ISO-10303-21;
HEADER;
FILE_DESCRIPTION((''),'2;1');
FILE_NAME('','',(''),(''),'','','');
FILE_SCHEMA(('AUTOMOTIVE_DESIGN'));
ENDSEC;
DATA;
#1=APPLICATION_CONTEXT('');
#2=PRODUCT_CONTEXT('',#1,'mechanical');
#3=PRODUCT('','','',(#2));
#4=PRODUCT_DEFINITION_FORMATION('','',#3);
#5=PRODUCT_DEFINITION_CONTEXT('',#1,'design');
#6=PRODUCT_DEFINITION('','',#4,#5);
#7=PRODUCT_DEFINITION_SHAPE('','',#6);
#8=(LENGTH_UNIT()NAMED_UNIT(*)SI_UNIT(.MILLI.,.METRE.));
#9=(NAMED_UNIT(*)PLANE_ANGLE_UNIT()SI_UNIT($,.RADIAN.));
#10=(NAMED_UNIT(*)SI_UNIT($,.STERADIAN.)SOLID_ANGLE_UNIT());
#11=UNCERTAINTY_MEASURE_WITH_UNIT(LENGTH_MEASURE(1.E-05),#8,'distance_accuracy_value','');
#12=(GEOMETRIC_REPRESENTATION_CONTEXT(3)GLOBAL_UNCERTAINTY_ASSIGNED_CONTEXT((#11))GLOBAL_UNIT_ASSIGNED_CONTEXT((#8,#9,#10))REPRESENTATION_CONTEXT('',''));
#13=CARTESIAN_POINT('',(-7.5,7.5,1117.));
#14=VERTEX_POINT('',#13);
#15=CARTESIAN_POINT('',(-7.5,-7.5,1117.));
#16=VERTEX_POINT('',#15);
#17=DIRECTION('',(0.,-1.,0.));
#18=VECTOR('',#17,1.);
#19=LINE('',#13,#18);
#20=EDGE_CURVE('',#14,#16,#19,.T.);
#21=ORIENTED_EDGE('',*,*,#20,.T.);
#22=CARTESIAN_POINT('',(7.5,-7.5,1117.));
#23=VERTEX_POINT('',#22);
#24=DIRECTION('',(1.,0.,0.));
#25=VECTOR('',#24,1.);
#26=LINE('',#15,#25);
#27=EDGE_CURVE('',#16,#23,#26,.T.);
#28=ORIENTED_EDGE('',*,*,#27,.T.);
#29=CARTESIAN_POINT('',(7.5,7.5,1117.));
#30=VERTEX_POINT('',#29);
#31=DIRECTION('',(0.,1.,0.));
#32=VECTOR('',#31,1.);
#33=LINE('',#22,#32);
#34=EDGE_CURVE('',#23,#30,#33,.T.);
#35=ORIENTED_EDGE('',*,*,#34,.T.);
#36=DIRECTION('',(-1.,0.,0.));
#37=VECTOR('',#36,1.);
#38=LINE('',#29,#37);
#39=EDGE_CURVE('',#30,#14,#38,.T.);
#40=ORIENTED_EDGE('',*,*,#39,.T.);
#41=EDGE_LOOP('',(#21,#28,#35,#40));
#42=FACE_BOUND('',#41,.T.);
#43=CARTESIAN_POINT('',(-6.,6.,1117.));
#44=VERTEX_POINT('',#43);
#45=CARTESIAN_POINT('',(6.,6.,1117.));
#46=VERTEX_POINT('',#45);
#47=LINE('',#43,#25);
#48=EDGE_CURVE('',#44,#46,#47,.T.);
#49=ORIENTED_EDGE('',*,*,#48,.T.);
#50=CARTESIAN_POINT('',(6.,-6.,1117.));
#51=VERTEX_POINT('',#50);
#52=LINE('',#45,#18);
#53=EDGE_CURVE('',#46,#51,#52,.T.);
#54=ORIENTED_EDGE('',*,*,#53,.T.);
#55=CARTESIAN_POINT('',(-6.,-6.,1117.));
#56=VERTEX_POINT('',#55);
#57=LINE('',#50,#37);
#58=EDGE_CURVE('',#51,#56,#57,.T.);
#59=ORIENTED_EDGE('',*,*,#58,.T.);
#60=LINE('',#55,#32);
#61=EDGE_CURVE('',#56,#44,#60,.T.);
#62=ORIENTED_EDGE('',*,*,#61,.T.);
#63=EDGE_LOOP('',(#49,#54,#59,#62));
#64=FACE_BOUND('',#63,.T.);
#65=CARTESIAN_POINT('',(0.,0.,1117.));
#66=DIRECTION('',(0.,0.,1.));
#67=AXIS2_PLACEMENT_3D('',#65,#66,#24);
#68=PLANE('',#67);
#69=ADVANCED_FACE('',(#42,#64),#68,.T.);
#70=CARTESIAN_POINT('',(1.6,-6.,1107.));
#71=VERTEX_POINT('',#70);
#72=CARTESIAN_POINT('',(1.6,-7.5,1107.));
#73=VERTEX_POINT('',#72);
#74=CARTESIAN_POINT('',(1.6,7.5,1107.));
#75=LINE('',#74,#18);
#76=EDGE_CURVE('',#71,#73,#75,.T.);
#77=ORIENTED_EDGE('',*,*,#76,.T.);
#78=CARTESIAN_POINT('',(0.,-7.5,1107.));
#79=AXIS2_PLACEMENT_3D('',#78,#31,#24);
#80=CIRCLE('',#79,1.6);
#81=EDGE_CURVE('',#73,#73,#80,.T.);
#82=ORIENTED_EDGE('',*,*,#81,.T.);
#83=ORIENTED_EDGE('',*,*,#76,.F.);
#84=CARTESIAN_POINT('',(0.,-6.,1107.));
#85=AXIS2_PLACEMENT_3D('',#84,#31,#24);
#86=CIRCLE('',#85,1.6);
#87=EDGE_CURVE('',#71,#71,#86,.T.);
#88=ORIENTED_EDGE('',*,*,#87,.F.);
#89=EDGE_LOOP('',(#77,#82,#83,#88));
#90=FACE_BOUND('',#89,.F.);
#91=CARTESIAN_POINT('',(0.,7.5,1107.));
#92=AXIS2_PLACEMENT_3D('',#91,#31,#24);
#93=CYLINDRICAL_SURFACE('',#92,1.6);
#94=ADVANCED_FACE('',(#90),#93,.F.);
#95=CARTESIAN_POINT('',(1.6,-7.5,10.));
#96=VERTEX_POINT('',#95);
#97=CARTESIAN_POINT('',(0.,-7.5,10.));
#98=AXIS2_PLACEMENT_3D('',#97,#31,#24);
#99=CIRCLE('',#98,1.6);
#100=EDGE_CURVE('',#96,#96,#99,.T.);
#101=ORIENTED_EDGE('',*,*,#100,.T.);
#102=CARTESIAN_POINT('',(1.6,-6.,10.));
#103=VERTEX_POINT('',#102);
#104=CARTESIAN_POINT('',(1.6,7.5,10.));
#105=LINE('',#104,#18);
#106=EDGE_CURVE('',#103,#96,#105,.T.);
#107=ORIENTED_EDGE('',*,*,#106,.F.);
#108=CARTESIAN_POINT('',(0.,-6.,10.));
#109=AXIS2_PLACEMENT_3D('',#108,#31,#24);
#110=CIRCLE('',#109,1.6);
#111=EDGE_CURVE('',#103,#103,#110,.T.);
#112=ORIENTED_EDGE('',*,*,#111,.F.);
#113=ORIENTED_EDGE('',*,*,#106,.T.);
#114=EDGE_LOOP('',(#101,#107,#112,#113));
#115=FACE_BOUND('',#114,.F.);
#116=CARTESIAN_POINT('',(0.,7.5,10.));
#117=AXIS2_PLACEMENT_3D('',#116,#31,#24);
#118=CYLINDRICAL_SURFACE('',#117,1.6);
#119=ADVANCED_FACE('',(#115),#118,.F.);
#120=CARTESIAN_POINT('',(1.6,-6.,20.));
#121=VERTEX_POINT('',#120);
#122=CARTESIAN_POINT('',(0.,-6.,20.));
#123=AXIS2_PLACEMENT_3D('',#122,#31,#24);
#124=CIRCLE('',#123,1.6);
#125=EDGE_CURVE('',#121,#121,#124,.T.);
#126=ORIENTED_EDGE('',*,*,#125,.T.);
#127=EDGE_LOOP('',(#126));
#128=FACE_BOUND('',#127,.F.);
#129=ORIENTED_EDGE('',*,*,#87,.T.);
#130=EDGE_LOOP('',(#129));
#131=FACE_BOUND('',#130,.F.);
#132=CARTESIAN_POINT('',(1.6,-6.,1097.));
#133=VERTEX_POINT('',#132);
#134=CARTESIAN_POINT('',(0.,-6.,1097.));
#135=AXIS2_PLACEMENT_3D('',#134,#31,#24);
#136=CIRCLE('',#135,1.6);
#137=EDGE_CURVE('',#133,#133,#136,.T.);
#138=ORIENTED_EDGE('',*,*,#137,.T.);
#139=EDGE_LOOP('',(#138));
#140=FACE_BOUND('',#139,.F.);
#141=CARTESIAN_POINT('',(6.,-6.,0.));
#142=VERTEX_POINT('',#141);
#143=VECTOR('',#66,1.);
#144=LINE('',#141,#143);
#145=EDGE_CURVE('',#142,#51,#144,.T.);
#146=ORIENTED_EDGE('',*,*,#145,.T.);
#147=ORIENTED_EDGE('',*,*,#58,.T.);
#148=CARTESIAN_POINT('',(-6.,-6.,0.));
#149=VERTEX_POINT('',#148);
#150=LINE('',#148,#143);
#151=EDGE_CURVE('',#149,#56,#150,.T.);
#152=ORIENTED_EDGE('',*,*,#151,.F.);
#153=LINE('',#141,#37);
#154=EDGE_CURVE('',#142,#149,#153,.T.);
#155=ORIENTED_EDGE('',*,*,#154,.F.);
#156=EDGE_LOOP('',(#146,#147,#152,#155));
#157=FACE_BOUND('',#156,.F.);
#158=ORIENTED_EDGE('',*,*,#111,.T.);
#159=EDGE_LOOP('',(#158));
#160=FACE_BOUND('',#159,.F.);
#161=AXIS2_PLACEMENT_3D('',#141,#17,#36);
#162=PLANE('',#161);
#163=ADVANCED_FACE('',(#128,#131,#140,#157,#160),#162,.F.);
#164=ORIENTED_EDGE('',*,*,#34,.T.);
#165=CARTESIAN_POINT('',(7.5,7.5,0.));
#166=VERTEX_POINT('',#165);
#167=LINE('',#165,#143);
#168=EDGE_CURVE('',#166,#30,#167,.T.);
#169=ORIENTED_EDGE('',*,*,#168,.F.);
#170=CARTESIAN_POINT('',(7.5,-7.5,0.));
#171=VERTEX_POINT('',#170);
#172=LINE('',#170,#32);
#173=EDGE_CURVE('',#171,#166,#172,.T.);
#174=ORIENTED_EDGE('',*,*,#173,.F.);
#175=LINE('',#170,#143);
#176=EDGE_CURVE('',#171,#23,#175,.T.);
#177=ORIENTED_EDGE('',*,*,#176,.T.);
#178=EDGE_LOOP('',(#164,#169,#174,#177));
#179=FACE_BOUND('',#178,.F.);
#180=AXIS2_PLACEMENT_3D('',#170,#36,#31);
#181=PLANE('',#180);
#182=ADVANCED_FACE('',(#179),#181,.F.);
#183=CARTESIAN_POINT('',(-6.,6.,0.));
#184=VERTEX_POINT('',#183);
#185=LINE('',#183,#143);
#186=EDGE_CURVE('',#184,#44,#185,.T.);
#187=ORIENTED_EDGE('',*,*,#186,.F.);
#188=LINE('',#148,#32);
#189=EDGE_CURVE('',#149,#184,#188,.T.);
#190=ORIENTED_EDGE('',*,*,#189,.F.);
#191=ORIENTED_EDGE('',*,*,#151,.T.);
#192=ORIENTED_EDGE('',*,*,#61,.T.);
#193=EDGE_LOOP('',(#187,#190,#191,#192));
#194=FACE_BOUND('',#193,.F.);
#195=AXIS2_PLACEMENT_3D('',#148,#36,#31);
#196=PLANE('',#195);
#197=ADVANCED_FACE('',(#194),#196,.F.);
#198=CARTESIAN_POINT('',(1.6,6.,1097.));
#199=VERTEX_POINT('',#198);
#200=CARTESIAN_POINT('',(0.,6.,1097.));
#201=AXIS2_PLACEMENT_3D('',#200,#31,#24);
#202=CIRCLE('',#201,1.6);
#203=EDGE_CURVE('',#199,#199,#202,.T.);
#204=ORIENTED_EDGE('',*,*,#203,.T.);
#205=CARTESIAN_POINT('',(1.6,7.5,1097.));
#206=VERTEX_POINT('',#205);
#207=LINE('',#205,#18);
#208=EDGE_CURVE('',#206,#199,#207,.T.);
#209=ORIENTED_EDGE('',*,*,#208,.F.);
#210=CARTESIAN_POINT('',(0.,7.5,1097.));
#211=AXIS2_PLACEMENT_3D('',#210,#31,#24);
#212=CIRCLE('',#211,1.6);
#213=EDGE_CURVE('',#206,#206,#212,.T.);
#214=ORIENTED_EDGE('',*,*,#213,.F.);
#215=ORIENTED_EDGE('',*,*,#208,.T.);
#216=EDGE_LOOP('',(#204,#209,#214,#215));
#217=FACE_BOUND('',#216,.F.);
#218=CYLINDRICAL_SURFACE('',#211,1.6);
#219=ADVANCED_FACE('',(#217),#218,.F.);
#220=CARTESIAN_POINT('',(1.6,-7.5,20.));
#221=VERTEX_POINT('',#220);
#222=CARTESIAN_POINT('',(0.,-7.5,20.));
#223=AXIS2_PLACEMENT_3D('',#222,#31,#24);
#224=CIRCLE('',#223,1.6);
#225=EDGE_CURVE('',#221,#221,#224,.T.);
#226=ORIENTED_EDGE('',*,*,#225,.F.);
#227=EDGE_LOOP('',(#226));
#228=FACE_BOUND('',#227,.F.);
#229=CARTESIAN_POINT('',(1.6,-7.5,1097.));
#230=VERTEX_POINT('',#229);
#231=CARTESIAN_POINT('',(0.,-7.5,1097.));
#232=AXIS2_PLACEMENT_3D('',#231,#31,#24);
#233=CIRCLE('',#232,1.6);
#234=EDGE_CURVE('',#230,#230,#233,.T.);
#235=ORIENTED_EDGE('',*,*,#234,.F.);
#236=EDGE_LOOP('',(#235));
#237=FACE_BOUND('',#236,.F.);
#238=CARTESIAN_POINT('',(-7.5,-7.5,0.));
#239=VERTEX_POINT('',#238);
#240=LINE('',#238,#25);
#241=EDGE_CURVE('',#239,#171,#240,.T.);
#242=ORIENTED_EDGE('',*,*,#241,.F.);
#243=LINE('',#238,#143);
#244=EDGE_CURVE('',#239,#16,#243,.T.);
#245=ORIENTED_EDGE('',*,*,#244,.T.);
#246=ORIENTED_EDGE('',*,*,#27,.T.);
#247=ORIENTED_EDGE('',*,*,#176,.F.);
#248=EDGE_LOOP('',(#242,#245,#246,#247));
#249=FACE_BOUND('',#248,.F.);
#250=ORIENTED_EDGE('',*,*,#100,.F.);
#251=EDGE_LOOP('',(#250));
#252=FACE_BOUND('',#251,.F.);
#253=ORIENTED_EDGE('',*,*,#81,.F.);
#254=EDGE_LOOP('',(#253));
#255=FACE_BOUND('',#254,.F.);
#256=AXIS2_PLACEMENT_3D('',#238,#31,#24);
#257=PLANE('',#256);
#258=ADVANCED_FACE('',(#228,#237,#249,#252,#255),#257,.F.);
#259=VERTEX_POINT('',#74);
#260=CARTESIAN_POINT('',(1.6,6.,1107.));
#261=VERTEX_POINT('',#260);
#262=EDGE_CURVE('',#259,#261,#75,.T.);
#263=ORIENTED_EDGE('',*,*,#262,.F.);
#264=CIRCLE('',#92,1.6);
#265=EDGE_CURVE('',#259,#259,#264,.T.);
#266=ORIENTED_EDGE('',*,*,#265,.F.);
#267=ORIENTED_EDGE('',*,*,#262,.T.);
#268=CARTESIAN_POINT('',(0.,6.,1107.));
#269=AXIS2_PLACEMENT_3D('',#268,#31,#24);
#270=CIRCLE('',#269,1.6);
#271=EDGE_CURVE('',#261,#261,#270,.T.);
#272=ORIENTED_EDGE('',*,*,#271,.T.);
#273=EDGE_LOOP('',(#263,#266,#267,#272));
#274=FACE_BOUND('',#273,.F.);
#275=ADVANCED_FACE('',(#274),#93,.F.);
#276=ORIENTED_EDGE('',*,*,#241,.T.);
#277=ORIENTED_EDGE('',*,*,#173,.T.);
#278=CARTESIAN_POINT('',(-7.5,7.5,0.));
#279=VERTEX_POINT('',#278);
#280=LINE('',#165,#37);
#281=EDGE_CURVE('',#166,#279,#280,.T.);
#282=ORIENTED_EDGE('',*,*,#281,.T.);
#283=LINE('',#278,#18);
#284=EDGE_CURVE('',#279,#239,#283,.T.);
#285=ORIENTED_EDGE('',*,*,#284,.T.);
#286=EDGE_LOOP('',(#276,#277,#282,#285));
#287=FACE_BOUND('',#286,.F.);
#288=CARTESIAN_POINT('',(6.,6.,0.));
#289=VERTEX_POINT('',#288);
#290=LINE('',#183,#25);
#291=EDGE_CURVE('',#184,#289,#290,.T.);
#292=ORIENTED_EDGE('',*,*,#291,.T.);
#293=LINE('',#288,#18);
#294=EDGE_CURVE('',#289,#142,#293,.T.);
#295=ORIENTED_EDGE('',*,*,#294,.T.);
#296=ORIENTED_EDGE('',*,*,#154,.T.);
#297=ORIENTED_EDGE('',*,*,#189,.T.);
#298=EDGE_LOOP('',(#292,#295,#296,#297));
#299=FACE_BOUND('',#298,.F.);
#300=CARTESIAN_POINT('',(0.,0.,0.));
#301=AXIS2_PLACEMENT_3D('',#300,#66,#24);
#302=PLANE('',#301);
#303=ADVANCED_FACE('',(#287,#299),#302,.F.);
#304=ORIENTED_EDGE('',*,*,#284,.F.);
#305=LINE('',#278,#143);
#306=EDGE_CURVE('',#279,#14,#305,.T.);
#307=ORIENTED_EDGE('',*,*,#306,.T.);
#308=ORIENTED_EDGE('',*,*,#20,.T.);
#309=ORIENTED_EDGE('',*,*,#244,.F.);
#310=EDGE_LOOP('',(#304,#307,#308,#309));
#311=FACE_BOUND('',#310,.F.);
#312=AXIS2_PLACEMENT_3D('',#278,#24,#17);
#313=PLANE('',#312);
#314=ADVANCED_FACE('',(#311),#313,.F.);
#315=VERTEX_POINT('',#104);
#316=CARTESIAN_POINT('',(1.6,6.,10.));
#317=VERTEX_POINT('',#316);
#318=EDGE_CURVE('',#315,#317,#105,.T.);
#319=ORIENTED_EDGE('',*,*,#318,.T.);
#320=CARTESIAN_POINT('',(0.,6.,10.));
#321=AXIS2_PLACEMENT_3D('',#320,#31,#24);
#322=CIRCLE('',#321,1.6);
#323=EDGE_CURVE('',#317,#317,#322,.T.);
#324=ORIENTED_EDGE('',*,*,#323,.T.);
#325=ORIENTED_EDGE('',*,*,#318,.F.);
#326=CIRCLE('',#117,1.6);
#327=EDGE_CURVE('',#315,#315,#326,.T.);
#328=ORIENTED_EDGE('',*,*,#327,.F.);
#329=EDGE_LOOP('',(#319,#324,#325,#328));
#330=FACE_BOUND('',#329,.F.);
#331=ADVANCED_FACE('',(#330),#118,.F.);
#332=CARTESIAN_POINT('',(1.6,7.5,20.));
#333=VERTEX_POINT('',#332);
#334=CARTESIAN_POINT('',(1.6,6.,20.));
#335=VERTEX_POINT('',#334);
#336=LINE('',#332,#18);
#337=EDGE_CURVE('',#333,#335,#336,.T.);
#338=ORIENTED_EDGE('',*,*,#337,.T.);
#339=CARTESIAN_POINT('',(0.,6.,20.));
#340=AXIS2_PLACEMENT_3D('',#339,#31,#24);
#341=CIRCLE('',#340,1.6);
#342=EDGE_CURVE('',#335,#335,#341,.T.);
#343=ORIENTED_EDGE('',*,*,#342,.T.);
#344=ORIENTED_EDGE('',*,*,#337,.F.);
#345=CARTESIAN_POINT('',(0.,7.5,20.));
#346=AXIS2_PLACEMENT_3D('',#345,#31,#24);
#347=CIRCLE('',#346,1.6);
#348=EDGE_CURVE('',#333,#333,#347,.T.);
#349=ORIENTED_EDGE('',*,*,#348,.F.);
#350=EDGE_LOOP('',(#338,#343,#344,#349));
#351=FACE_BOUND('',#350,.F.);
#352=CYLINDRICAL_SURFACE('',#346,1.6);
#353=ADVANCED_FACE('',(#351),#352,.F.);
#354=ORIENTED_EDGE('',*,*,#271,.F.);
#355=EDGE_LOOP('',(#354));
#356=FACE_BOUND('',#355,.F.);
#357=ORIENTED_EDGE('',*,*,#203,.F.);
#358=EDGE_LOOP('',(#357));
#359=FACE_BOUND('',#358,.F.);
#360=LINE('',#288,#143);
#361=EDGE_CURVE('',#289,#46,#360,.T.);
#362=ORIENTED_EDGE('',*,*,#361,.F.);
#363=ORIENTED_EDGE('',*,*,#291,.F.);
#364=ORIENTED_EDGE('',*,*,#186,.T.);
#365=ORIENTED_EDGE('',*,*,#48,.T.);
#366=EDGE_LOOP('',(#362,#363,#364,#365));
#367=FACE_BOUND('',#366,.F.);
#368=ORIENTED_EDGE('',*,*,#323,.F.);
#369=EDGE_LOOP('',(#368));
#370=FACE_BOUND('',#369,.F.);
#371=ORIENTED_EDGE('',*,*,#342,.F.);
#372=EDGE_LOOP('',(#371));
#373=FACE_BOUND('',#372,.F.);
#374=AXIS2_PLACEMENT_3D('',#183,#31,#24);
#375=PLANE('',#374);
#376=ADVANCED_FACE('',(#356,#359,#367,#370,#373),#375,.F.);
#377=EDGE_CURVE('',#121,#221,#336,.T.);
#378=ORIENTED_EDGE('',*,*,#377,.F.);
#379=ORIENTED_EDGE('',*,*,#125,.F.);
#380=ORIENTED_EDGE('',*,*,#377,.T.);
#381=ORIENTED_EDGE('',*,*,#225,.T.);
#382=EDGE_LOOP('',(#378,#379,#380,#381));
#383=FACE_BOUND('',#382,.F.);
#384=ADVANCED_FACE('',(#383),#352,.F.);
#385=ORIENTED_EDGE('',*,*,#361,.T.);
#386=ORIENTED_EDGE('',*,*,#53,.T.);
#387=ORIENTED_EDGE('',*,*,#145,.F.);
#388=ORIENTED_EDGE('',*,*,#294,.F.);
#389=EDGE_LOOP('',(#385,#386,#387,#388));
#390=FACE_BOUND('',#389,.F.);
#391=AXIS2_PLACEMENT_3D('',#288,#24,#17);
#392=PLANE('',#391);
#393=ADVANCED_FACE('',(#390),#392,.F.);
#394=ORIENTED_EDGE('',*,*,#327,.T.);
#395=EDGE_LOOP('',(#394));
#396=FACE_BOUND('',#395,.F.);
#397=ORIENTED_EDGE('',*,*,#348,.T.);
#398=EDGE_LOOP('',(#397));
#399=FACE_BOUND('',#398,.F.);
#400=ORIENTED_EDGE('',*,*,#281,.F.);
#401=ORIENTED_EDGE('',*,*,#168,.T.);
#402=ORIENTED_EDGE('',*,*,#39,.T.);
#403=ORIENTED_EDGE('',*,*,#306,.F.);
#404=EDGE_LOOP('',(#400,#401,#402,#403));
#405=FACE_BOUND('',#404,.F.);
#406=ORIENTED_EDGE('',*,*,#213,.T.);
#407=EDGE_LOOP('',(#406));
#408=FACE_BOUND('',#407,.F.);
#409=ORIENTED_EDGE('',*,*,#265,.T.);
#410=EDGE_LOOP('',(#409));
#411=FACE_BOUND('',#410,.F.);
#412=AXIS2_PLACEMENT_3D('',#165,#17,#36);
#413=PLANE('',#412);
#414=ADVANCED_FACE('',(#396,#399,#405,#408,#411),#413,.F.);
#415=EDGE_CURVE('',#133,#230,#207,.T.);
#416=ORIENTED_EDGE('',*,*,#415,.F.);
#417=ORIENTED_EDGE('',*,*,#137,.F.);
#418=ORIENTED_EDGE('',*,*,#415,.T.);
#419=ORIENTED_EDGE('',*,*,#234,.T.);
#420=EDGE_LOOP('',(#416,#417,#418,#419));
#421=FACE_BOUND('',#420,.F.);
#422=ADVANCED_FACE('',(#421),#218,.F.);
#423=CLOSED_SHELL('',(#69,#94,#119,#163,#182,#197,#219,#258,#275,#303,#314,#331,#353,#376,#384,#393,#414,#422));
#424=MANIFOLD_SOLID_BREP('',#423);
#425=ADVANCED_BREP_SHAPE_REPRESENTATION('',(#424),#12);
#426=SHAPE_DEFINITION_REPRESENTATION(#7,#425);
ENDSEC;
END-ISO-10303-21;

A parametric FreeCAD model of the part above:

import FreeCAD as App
import Part
import Sketcher
from FreeCAD import Vector
Q = App.Units.Quantity

doc = App.newDocument("Part")
body = doc.addObject("PartDesign::Body", "Body")

# Sketch on XY plane
sketch1 = body.newObject("Sketcher::SketchObject", "Sketch")
sketch1.AttachmentSupport = (doc.getObject("XY_Plane"), [""])
sketch1.MapMode = "FlatFace"
sketch1.addGeometry(Part.LineSegment(Vector(8, -8, 0), Vector(8, 8, 0)), False)
sketch1.addGeometry(Part.LineSegment(Vector(8, 8, 0), Vector(-8, 8, 0)), False)
sketch1.addGeometry(Part.LineSegment(Vector(-8, 8, 0), Vector(-8, -8, 0)), False)
sketch1.addGeometry(Part.LineSegment(Vector(-8, -8, 0), Vector(8, -8, 0)), False)
sketch1.addGeometry(Part.LineSegment(Vector(-6, -6, 0), Vector(-6, 6, 0)), False)
sketch1.addGeometry(Part.LineSegment(Vector(-6, 6, 0), Vector(6, 6, 0)), False)
sketch1.addGeometry(Part.LineSegment(Vector(6, 6, 0), Vector(6, -6, 0)), False)
sketch1.addGeometry(Part.LineSegment(Vector(6, -6, 0), Vector(-6, -6, 0)), False)
sketch1.addConstraint(Sketcher.Constraint("Coincident", 0, 2, 1, 1))
sketch1.addConstraint(Sketcher.Constraint("Coincident", 1, 2, 2, 1))
sketch1.addConstraint(Sketcher.Constraint("Coincident", 2, 2, 3, 1))
sketch1.addConstraint(Sketcher.Constraint("Coincident", 3, 2, 0, 1))
sketch1.addConstraint(Sketcher.Constraint("Coincident", 4, 2, 5, 1))
sketch1.addConstraint(Sketcher.Constraint("Coincident", 5, 2, 6, 1))
sketch1.addConstraint(Sketcher.Constraint("Coincident", 6, 2, 7, 1))
sketch1.addConstraint(Sketcher.Constraint("Coincident", 7, 2, 4, 1))
sketch1.addConstraint(Sketcher.Constraint("Vertical", 0))
sketch1.addConstraint(Sketcher.Constraint("Horizontal", 1))
sketch1.addConstraint(Sketcher.Constraint("Vertical", 2))
sketch1.addConstraint(Sketcher.Constraint("Horizontal", 3))
sketch1.addConstraint(Sketcher.Constraint("Vertical", 4))
sketch1.addConstraint(Sketcher.Constraint("Horizontal", 5))
sketch1.addConstraint(Sketcher.Constraint("Vertical", 6))
sketch1.addConstraint(Sketcher.Constraint("Horizontal", 7))
sketch1.addConstraint(Sketcher.Constraint("Symmetric", 0, 2, 2, 2, -1, 1))
sketch1.addConstraint(Sketcher.Constraint("Symmetric", 4, 2, 6, 2, -1, 1))
sketch1.addConstraint(Sketcher.Constraint("Equal", 3, 0))
sketch1.addConstraint(Sketcher.Constraint("Equal", 7, 4))
sketch1.addConstraint(Sketcher.Constraint("DistanceX", 1, 2, 1, 1, Q("15 mm")))
sketch1.addConstraint(Sketcher.Constraint("DistanceX", 1, 2, 4, 2, Q("1.5 mm")))
pad1 = body.newObject("PartDesign::Pad", "Pad")
pad1.Profile = sketch1
pad1.Length = 1117

# Sketch on XZ plane
sketch2 = body.newObject("Sketcher::SketchObject", "Sketch001")
sketch2.AttachmentSupport = (doc.getObject("XZ_Plane"), [""])
sketch2.MapMode = "FlatFace"
sketch2.AttachmentOffset = App.Placement(Vector(0, 0, -7.5), App.Rotation())
sketch2.addGeometry(Part.Circle(Vector(0, 10, 0), Vector(0, 0, 1), 1.6), False)
sketch2.addGeometry(Part.Circle(Vector(0, 20, 0), Vector(0, 0, 1), 1.6), False)
sketch2.addGeometry(Part.Circle(Vector(0, 1107, 0), Vector(0, 0, 1), 1.6), False)
sketch2.addGeometry(Part.Circle(Vector(0, 1097, 0), Vector(0, 0, 1), 1.6), False)
sketch2.addConstraint(Sketcher.Constraint("Equal", 0, 1))
sketch2.addConstraint(Sketcher.Constraint("Equal", 1, 2))
sketch2.addConstraint(Sketcher.Constraint("Equal", 2, 3))
sketch2.addConstraint(Sketcher.Constraint("PointOnObject", 0, 3, -2))
sketch2.addConstraint(Sketcher.Constraint("PointOnObject", 1, 3, -2))
sketch2.addConstraint(Sketcher.Constraint("PointOnObject", 2, 3, -2))
sketch2.addConstraint(Sketcher.Constraint("PointOnObject", 3, 3, -2))
sketch2.addConstraint(Sketcher.Constraint("Diameter", 0, Q("3.2 mm")))
sketch2.addConstraint(Sketcher.Constraint("DistanceY", -1, 1, 0, 3, Q("10 mm")))
sketch2.addConstraint(Sketcher.Constraint("DistanceY", 0, 3, 1, 3, Q("10 mm")))
sketch2.addConstraint(Sketcher.Constraint("DistanceY", 3, 3, 2, 3, Q("10 mm")))
sketch2.addConstraint(Sketcher.Constraint("DistanceY", -1, 1, 2, 3, Q("1107 mm")))
pocket1 = body.newObject("PartDesign::Pocket", "Pocket")
pocket1.Profile = sketch2
pocket1.Type = "ThroughAll"
pocket1.Reversed = True

doc.recompute()
